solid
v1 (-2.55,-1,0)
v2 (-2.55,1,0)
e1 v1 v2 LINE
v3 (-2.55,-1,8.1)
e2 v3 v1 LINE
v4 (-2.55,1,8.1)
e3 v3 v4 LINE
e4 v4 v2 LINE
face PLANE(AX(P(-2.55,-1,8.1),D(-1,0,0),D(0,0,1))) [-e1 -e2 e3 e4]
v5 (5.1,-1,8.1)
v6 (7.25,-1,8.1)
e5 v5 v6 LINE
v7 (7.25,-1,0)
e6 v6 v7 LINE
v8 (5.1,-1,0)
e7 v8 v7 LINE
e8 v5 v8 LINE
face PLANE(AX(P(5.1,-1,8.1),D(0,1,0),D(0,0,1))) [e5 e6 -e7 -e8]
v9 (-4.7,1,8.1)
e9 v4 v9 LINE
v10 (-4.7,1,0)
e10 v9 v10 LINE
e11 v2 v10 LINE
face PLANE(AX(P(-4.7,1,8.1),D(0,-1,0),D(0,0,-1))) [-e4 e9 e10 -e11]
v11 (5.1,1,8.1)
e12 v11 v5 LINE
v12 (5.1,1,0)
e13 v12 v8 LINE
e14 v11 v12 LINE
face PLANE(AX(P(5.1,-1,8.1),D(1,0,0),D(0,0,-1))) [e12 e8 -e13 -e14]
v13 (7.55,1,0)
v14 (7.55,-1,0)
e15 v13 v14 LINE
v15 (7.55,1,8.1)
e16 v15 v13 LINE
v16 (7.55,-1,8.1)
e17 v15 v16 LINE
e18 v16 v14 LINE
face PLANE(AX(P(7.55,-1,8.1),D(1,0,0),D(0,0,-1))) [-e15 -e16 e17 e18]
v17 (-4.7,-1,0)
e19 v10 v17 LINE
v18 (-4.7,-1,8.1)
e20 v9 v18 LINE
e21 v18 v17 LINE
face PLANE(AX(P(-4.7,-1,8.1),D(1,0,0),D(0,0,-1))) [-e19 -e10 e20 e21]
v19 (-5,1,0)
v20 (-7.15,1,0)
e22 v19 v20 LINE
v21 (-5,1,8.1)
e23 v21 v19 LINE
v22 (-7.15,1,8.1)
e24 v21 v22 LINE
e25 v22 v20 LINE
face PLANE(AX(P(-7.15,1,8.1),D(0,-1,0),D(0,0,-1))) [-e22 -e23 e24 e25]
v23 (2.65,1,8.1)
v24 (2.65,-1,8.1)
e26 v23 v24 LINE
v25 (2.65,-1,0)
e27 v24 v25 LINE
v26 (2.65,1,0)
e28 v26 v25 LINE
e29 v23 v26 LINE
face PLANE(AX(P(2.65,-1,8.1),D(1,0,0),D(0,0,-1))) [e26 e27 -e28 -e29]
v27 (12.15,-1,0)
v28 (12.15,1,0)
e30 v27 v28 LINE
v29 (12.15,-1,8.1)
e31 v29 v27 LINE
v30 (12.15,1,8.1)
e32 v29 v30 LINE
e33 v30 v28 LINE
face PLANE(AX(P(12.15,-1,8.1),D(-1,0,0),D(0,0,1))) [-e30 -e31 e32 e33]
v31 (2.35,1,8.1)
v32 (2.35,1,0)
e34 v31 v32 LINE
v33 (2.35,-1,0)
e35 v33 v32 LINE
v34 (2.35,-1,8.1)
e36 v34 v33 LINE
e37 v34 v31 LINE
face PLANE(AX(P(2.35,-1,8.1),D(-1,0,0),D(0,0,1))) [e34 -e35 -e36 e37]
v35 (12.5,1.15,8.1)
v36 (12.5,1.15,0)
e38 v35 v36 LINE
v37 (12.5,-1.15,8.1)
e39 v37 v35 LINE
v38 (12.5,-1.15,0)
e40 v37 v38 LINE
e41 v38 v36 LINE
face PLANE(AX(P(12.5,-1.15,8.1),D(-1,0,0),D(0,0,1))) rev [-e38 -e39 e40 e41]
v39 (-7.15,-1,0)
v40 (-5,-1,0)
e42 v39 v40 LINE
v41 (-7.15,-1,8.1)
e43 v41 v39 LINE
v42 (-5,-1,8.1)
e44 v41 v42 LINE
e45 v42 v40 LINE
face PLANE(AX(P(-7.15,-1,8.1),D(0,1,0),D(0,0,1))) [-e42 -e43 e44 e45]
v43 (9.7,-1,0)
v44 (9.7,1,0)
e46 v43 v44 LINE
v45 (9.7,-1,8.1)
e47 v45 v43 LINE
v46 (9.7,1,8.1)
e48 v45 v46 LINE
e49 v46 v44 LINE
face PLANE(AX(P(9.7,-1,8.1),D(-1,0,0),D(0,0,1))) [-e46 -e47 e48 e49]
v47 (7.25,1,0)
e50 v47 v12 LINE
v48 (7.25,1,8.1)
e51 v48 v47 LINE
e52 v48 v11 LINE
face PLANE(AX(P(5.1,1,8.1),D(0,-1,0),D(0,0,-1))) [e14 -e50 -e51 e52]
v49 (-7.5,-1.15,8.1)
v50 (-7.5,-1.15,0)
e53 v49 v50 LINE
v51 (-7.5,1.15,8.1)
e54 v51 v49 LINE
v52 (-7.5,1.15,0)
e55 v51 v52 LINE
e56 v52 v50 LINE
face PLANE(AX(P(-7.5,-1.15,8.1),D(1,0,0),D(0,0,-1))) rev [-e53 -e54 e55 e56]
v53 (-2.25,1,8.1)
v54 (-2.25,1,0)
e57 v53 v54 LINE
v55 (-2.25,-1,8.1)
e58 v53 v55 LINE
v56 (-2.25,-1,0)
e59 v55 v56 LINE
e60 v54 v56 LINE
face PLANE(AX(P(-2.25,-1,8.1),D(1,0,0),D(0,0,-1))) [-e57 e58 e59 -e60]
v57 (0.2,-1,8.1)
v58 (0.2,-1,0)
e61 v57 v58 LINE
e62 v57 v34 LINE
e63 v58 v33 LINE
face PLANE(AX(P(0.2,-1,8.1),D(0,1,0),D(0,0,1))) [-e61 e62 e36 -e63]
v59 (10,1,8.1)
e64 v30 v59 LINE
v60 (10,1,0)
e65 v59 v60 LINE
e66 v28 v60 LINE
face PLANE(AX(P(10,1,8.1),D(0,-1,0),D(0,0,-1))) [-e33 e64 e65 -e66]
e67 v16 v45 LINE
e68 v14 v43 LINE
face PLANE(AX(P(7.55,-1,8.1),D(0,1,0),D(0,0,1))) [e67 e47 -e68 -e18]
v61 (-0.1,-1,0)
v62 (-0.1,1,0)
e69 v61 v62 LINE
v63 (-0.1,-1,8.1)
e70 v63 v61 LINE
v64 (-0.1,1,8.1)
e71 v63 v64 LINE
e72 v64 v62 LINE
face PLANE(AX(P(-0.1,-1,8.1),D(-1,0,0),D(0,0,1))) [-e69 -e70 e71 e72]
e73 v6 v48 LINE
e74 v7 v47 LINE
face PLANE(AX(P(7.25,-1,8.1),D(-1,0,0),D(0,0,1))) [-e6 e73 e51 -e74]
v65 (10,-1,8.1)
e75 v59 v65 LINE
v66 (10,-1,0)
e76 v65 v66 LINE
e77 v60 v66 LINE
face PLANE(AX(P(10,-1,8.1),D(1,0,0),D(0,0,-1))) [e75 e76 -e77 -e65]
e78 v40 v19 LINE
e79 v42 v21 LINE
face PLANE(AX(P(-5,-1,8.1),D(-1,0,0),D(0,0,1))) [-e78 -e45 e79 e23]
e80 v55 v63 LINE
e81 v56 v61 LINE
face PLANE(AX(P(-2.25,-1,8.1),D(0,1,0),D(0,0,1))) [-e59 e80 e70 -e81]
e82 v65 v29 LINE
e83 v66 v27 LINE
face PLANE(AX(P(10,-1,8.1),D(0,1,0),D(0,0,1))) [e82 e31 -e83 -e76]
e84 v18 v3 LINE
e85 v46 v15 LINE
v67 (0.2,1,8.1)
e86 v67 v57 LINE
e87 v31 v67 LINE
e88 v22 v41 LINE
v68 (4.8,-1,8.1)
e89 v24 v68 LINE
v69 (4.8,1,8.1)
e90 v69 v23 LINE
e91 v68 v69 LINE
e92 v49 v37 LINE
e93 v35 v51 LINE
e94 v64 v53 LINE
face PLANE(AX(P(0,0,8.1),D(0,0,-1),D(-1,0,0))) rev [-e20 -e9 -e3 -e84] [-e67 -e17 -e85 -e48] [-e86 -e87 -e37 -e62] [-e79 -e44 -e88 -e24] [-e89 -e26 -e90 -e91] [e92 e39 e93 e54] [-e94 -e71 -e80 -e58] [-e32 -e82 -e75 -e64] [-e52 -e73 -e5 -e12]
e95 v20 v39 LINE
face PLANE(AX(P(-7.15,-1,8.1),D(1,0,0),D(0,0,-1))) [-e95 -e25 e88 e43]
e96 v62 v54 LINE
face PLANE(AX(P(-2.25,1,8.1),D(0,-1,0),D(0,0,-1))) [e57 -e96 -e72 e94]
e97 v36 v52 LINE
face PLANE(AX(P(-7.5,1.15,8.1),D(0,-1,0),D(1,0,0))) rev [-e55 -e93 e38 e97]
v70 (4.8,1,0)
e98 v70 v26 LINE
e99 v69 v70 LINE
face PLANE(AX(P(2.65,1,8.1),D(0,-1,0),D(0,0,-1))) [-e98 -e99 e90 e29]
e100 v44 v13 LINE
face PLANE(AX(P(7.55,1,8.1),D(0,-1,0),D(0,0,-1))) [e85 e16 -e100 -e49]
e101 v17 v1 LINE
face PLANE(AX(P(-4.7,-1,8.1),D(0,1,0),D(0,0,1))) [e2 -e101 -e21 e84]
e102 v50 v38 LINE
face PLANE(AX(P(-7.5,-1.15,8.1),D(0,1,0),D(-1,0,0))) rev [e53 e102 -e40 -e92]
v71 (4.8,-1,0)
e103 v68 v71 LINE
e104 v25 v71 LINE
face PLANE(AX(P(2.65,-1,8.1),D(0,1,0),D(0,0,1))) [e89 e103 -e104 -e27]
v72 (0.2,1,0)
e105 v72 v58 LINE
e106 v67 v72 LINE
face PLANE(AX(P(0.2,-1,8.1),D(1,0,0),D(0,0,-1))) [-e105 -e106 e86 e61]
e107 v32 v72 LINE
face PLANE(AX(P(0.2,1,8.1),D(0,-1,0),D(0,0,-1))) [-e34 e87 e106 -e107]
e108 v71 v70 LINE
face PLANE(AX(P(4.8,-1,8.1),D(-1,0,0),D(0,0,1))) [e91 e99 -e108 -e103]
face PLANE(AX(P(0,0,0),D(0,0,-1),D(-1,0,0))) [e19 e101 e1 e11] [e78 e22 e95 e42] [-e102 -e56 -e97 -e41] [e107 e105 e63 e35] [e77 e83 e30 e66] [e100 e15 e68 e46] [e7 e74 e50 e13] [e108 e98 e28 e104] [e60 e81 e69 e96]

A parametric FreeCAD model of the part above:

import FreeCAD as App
import Part
import Sketcher

V = App.Vector


def add_polygon(sketch, points):
    """Adds a closed chain of lines whose ends are joined by coincident constraints."""
    first, n = sketch.GeometryCount, len(points)
    for a, b in zip(points, points[1:] + points[:1]):
        sketch.addGeometry(Part.LineSegment(App.Vector(*a, 0), App.Vector(*b, 0)), False)
    for i in range(n):
        sketch.addConstraint(Sketcher.Constraint("Coincident", first + i, 2, first + (i + 1) % n, 1))

doc = App.newDocument("Part")
body = doc.addObject("PartDesign::Body", "Body")

# Sketch on XY plane
sketch1 = body.newObject("Sketcher::SketchObject", "Sketch")
sketch1.AttachmentSupport = (doc.getObject("XY_Plane"), [""])
sketch1.MapMode = "FlatFace"
add_polygon(sketch1, [(-7.5, 1.1), (-7.5, -1.1), (12.5, -1.1), (12.5, 1.1)])  # lines 0-3
add_polygon(sketch1, [(-5, -1), (-7.2, -1), (-7.2, 1), (-5, 1)])  # lines 4-7
add_polygon(sketch1, [(-2.5, -1), (-4.7, -1), (-4.7, 1), (-2.5, 1)])  # lines 8-11
add_polygon(sketch1, [(-0.1, -1), (-2.2, -1), (-2.2, 1), (-0.1, 1)])  # lines 12-15
add_polygon(sketch1, [(2.4, -1), (0.2, -1), (0.2, 1), (2.4, 1)])  # lines 16-19
add_polygon(sketch1, [(4.8, -1), (2.6, -1), (2.6, 1), (4.8, 1)])  # lines 20-23
add_polygon(sketch1, [(7.2, -1), (5.1, -1), (5.1, 1), (7.2, 1)])  # lines 24-27
add_polygon(sketch1, [(9.7, -1), (7.5, -1), (7.5, 1), (9.7, 1)])  # lines 28-31
add_polygon(sketch1, [(12.2, -1), (10, -1), (10, 1), (12.2, 1)])  # lines 32-35
sketch1.addConstraint([
    Sketcher.Constraint("Vertical", 0),
    Sketcher.Constraint("Horizontal", 1),
    Sketcher.Constraint("Vertical", 2),
    Sketcher.Constraint("Horizontal", 3),
    Sketcher.Constraint("Horizontal", 4),
    Sketcher.Constraint("Vertical", 5),
    Sketcher.Constraint("Horizontal", 6),
    Sketcher.Constraint("Vertical", 7),
    Sketcher.Constraint("Horizontal", 8),
    Sketcher.Constraint("Vertical", 9),
    Sketcher.Constraint("Horizontal", 10),
    Sketcher.Constraint("Vertical", 11),
    Sketcher.Constraint("Horizontal", 12),
    Sketcher.Constraint("Vertical", 13),
    Sketcher.Constraint("Horizontal", 14),
    Sketcher.Constraint("Vertical", 15),
    Sketcher.Constraint("Horizontal", 16),
    Sketcher.Constraint("Vertical", 17),
    Sketcher.Constraint("Horizontal", 18),
    Sketcher.Constraint("Vertical", 19),
    Sketcher.Constraint("Horizontal", 20),
    Sketcher.Constraint("Vertical", 21),
    Sketcher.Constraint("Horizontal", 22),
    Sketcher.Constraint("Vertical", 23),
    Sketcher.Constraint("Horizontal", 24),
    Sketcher.Constraint("Vertical", 25),
    Sketcher.Constraint("Horizontal", 26),
    Sketcher.Constraint("Vertical", 27),
    Sketcher.Constraint("Horizontal", 28),
    Sketcher.Constraint("Vertical", 29),
    Sketcher.Constraint("Horizontal", 30),
    Sketcher.Constraint("Vertical", 31),
    Sketcher.Constraint("Horizontal", 32),
    Sketcher.Constraint("Vertical", 33),
    Sketcher.Constraint("Horizontal", 34),
    Sketcher.Constraint("Vertical", 35),
    Sketcher.Constraint("Horizontal", 7, 2, 8, 2),
    Sketcher.Constraint("Horizontal", 6, 2, 9, 2),
    Sketcher.Constraint("Horizontal", 11, 2, 12, 2),
    Sketcher.Constraint("Horizontal", 10, 2, 13, 2),
    Sketcher.Constraint("Horizontal", 15, 2, 16, 2),
    Sketcher.Constraint("Horizontal", 14, 2, 17, 2),
    Sketcher.Constraint("Horizontal", 19, 2, 20, 2),
    Sketcher.Constraint("Horizontal", 18, 2, 21, 2),
    Sketcher.Constraint("Horizontal", 23, 2, 24, 2),
    Sketcher.Constraint("Horizontal", 22, 2, 25, 2),
    Sketcher.Constraint("Horizontal", 27, 2, 28, 2),
    Sketcher.Constraint("Horizontal", 26, 2, 29, 2),
    Sketcher.Constraint("Horizontal", 31, 2, 32, 2),
    Sketcher.Constraint("Horizontal", 30, 2, 33, 2),
    Sketcher.Constraint("Equal", 6, 8),
    Sketcher.Constraint("Equal", 10, 12),
    Sketcher.Constraint("Equal", 14, 16),
    Sketcher.Constraint("Equal", 18, 20),
    Sketcher.Constraint("Equal", 22, 24),
    Sketcher.Constraint("Equal", 26, 28),
    Sketcher.Constraint("Equal", 30, 32),
    Sketcher.Constraint("DistanceX", 1, 1, 1, 2, 20.0),
    Sketcher.Constraint("DistanceY", 5, 1, 5, 2, 2.0),
    Sketcher.Constraint("DistanceY", 0, 2, 0, 1, 2.3),
    Sketcher.Constraint("DistanceY", 4, 2, -1, 1, 1.0),
    Sketcher.Constraint("DistanceX", 6, 2, -1, 1, 5.0),
    Sketcher.Constraint("DistanceX", -1, 1, 32, 2, 10.0),
    Sketcher.Constraint("DistanceX", 4, 2, 4, 1, 2.15),
    Sketcher.Constraint("DistanceX", 0, 2, -1, 1, 7.5),
    Sketcher.Constraint("DistanceX", 8, 2, -1, 1, 4.7),
    Sketcher.Constraint("DistanceX", 14, 2, -1, 1, 0.1),
    Sketcher.Constraint("DistanceX", -1, 1, 16, 2, 0.2),
    Sketcher.Constraint("DistanceX", -1, 1, 22, 2, 4.8),
    Sketcher.Constraint("DistanceX", -1, 1, 24, 2, 5.1),
    Sketcher.Constraint("DistanceX", -1, 1, 30, 2, 9.7),
    Sketcher.Constraint("DistanceY", 0, 2, -1, 1, 1.15),
])
pad1 = body.newObject("PartDesign::Pad", "Pad")
pad1.Profile = sketch1
pad1.Length = 8.1

doc.recompute()
